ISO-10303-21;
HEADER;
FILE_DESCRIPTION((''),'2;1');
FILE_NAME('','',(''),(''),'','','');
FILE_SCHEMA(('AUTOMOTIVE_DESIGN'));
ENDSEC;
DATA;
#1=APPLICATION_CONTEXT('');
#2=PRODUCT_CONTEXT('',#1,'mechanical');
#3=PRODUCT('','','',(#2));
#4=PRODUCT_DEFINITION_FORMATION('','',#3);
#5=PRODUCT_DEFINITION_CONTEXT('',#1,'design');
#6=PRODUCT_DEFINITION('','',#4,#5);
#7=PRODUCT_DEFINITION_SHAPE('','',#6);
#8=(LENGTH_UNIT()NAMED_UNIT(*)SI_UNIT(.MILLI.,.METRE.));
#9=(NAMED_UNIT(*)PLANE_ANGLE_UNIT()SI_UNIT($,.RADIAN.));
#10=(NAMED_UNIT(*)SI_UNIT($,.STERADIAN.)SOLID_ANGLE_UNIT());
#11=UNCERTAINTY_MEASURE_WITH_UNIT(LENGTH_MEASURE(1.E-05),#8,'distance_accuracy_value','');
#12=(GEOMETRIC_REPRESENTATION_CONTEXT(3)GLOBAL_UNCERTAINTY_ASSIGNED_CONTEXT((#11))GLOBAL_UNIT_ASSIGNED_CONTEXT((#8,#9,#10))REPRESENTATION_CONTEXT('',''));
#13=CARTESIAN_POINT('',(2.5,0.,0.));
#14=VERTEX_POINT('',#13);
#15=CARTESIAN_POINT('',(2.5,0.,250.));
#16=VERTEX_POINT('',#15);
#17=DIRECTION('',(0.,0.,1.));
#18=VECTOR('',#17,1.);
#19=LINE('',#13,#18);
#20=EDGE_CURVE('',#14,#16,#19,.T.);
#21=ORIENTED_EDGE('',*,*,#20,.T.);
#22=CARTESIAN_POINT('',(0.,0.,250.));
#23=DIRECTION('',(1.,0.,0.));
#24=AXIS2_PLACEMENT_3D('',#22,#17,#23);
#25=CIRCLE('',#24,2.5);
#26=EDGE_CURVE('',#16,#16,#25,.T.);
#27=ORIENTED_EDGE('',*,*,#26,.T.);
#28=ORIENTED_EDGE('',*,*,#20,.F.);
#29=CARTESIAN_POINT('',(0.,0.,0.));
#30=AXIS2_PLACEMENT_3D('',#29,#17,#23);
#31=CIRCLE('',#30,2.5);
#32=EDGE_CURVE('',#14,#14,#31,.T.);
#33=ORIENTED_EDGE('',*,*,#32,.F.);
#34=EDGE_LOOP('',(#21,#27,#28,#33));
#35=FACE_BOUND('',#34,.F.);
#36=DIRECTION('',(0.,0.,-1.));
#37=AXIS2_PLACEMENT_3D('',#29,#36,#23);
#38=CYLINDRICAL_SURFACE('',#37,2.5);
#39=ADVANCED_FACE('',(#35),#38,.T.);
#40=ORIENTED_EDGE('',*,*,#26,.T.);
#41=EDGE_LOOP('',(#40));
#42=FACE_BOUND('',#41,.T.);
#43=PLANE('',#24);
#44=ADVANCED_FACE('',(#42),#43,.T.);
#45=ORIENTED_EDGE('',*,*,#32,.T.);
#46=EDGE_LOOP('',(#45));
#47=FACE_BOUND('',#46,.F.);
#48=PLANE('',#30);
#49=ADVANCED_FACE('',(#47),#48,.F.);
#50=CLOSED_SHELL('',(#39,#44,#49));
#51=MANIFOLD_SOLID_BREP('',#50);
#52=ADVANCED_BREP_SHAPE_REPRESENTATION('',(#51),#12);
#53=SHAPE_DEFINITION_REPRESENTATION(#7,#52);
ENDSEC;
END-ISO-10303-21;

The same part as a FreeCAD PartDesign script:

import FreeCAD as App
import Part
import Sketcher
from FreeCAD import Vector
Q = App.Units.Quantity

doc = App.newDocument("Part")
body = doc.addObject("PartDesign::Body", "Body")

sketch1 = body.newObject("Sketcher::SketchObject", "Sketch")
sketch1.AttachmentSupport = (doc.getObject("XY_Plane"), [""])
sketch1.MapMode = "FlatFace"
sketch1.addGeometry(Part.Circle(Vector(0, 0, 0), Vector(0, 0, 1), 2.5), False)
sketch1.addConstraint(Sketcher.Constraint("Coincident", 0, 3, -1, 1))
sketch1.addConstraint(Sketcher.Constraint("Diameter", 0, Q("5 mm")))
pad1 = body.newObject("PartDesign::Pad", "Pad")
pad1.Profile = sketch1
pad1.Length = 250

doc.recompute()
